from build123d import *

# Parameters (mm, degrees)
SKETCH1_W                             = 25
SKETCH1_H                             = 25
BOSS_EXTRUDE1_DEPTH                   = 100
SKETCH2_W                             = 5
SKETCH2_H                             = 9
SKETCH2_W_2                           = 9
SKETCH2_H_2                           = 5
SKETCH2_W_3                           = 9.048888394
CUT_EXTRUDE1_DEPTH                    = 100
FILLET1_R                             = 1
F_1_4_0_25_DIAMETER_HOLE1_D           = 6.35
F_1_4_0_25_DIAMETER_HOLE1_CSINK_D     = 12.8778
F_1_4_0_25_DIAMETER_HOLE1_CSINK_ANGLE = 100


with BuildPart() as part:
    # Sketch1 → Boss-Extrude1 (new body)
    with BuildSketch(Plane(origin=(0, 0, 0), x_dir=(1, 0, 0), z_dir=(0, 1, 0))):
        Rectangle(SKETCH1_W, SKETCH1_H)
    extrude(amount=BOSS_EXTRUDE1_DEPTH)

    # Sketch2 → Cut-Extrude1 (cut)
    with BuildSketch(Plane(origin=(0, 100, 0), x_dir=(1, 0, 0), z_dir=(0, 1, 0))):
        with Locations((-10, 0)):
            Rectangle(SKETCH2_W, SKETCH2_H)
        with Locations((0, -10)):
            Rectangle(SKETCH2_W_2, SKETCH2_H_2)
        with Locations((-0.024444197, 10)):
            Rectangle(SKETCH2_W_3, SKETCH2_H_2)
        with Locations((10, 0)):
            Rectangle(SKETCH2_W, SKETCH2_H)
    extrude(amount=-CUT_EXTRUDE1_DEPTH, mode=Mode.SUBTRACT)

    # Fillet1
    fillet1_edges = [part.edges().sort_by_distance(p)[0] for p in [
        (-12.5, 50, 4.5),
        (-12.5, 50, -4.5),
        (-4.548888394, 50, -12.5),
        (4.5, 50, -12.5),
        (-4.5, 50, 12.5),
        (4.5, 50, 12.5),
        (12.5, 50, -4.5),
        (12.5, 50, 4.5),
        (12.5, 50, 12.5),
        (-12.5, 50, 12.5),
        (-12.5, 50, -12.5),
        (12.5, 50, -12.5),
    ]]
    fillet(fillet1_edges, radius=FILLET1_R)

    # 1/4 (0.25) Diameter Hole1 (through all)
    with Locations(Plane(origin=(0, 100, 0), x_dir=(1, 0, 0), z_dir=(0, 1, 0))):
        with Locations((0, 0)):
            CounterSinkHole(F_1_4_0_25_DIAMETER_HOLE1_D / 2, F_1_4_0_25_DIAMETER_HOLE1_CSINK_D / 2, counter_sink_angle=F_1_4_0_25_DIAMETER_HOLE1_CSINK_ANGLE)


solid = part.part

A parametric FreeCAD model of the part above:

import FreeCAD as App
import Part
import Sketcher

V = App.Vector


def edges_at(feature, points):
    """Names of the edges that pass closest to the given points."""
    edges = feature.Shape.Edges
    near = lambda p: min(range(len(edges)), key=lambda i: edges[i].distToShape(Part.Vertex(*p))[0])
    return sorted({f"Edge{near(p) + 1}" for p in points})

doc = App.newDocument("Part")
body = doc.addObject("PartDesign::Body", "Body")

sketch1 = body.newObject("Sketcher::SketchObject", "Sketch")
sketch1.AttachmentSupport = (doc.getObject("XZ_Plane"), [""])
sketch1.MapMode = "FlatFace"
sketch1.addGeometry([
    Part.LineSegment(V(-12, -12, 0), V(-12, 12, 0)),
    Part.LineSegment(V(-12, 12, 0), V(12, 12, 0)),
    Part.LineSegment(V(12, 12, 0), V(12, -12, 0)),
    Part.LineSegment(V(12, -12, 0), V(-12, -12, 0)),
], False)
sketch1.addConstraint([
    Sketcher.Constraint("Coincident", 0, 2, 1, 1),
    Sketcher.Constraint("Coincident", 1, 2, 2, 1),
    Sketcher.Constraint("Coincident", 2, 2, 3, 1),
    Sketcher.Constraint("Coincident", 3, 2, 0, 1),
    Sketcher.Constraint("Vertical", 0),
    Sketcher.Constraint("Horizontal", 1),
    Sketcher.Constraint("Vertical", 2),
    Sketcher.Constraint("Horizontal", 3),
    Sketcher.Constraint("Symmetric", 0, 2, 2, 2, -1, 1),
    Sketcher.Constraint("Equal", 3, 0),
    Sketcher.Constraint("DistanceX", 1, 1, 1, 2, 25.0),
])
pad1 = body.newObject("PartDesign::Pad", "Pad")
pad1.Profile = sketch1
pad1.Length = 100
pad1.Reversed = True

sketch2 = body.newObject("Sketcher::SketchObject", "Sketch001")
sketch2.AttachmentSupport = (doc.getObject("XZ_Plane"), [""])
sketch2.MapMode = "FlatFace"
sketch2.AttachmentOffset = App.Placement(V(0, 0, -100), App.Rotation())
sketch2.addGeometry([
    Part.LineSegment(V(-12, -4, 0), V(-12, 4, 0)),
    Part.LineSegment(V(-12, 4, 0), V(-8, 4, 0)),
    Part.LineSegment(V(-8, 4, 0), V(-8, -4, 0)),
    Part.LineSegment(V(-8, -4, 0), V(-12, -4, 0)),
    Part.LineSegment(V(-4, 8, 0), V(-4, 12, 0)),
    Part.LineSegment(V(-4, 12, 0), V(4, 12, 0)),
    Part.LineSegment(V(4, 12, 0), V(4, 8, 0)),
    Part.LineSegment(V(4, 8, 0), V(-4, 8, 0)),
    Part.LineSegment(V(-5, -12, 0), V(-5, -8, 0)),
    Part.LineSegment(V(-5, -8, 0), V(4, -8, 0)),
    Part.LineSegment(V(4, -8, 0), V(4, -12, 0)),
    Part.LineSegment(V(4, -12, 0), V(-5, -12, 0)),
    Part.LineSegment(V(8, -4, 0), V(8, 4, 0)),
    Part.LineSegment(V(8, 4, 0), V(12, 4, 0)),
    Part.LineSegment(V(12, 4, 0), V(12, -4, 0)),
    Part.LineSegment(V(12, -4, 0), V(8, -4, 0)),
], False)
sketch2.addConstraint([
    Sketcher.Constraint("Coincident", 0, 2, 1, 1),
    Sketcher.Constraint("Coincident", 1, 2, 2, 1),
    Sketcher.Constraint("Coincident", 2, 2, 3, 1),
    Sketcher.Constraint("Coincident", 3, 2, 0, 1),
    Sketcher.Constraint("Coincident", 4, 2, 5, 1),
    Sketcher.Constraint("Coincident", 5, 2, 6, 1),
    Sketcher.Constraint("Coincident", 6, 2, 7, 1),
    Sketcher.Constraint("Coincident", 7, 2, 4, 1),
    Sketcher.Constraint("Coincident", 8, 2, 9, 1),
    Sketcher.Constraint("Coincident", 9, 2, 10, 1),
    Sketcher.Constraint("Coincident", 10, 2, 11, 1),
    Sketcher.Constraint("Coincident", 11, 2, 8, 1),
    Sketcher.Constraint("Coincident", 12, 2, 13, 1),
    Sketcher.Constraint("Coincident", 13, 2, 14, 1),
    Sketcher.Constraint("Coincident", 14, 2, 15, 1),
    Sketcher.Constraint("Coincident", 15, 2, 12, 1),
    Sketcher.Constraint("Vertical", 0),
    Sketcher.Constraint("Horizontal", 1),
    Sketcher.Constraint("Vertical", 2),
    Sketcher.Constraint("Horizontal", 3),
    Sketcher.Constraint("Vertical", 4),
    Sketcher.Constraint("Horizontal", 5),
    Sketcher.Constraint("Vertical", 6),
    Sketcher.Constraint("Horizontal", 7),
    Sketcher.Constraint("Vertical", 8),
    Sketcher.Constraint("Horizontal", 9),
    Sketcher.Constraint("Vertical", 10),
    Sketcher.Constraint("Horizontal", 11),
    Sketcher.Constraint("Vertical", 12),
    Sketcher.Constraint("Horizontal", 13),
    Sketcher.Constraint("Vertical", 14),
    Sketcher.Constraint("Horizontal", 15),
    Sketcher.Constraint("Symmetric", 7, 2, 9, 2, -1, 1),
    Sketcher.Constraint("Symmetric", 2, 2, 12, 2, -1, 1),
    Sketcher.Constraint("Symmetric", 0, 2, 14, 2, -1, 1),
    Sketcher.Constraint("Symmetric", 5, 2, 10, 2, -1),
    Sketcher.Constraint("Horizontal", 1, 2, 12, 2),
    Sketcher.Constraint("Equal", 7, 0),
    Sketcher.Constraint("Equal", 15, 4),
    Sketcher.Constraint("DistanceX", 1, 1, 1, 2, 5.0),
    Sketcher.Constraint("DistanceX", 5, 1, 5, 2, 9.0),
    Sketcher.Constraint("DistanceX", 1, 2, 4, 2, 3.0),
    Sketcher.Constraint("DistanceY", 1, 2, 4, 2, 8.0),
    Sketcher.Constraint("DistanceX", 9, 1, 9, 2, 9.048888),
])
pocket1 = body.newObject("PartDesign::Pocket", "Pocket")
pocket1.Profile = sketch2
pocket1.Length = 100
pocket1.Reversed = True
doc.recompute()

fillet = body.newObject("PartDesign::Fillet", "Fillet")
fillet.Base = (pocket1, edges_at(pocket1, [
    (-12.5, 50, 4.5),
    (-12.5, 50, -4.5),
    (-4.549, 50, -12.5),
    (4.5, 50, -12.5),
    (-4.5, 50, 12.5),
    (4.5, 50, 12.5),
    (12.5, 50, -4.5),
    (12.5, 50, 4.5),
    (12.5, 50, 12.5),
    (-12.5, 50, 12.5),
    (-12.5, 50, -12.5),
    (12.5, 50, -12.5),
]))
fillet.Radius = 1

sketch3 = body.newObject("Sketcher::SketchObject", "Sketch002")
sketch3.AttachmentSupport = (doc.getObject("XZ_Plane"), [""])
sketch3.MapMode = "FlatFace"
sketch3.AttachmentOffset = App.Placement(V(0, 0, -100), App.Rotation())
sketch3.addGeometry(Part.Circle(V(0, 0, 0), V(0, 0, 1), 3.2), False)
sketch3.addConstraint([
    Sketcher.Constraint("Coincident", 0, 3, -1, 1),
    Sketcher.Constraint("Diameter", 0, 6.35),
])
doc.recompute()
hole = body.newObject("PartDesign::Hole", "Hole")
hole.Profile = sketch3
hole.ThreadType = "None"
hole.Diameter = 6.35
hole.DepthType = "ThroughAll"
hole.HoleCutType = "Countersink"
hole.HoleCutDiameter = 12.8778
hole.HoleCutCountersinkAngle = 100
hole.Reversed = True

doc.recompute()
